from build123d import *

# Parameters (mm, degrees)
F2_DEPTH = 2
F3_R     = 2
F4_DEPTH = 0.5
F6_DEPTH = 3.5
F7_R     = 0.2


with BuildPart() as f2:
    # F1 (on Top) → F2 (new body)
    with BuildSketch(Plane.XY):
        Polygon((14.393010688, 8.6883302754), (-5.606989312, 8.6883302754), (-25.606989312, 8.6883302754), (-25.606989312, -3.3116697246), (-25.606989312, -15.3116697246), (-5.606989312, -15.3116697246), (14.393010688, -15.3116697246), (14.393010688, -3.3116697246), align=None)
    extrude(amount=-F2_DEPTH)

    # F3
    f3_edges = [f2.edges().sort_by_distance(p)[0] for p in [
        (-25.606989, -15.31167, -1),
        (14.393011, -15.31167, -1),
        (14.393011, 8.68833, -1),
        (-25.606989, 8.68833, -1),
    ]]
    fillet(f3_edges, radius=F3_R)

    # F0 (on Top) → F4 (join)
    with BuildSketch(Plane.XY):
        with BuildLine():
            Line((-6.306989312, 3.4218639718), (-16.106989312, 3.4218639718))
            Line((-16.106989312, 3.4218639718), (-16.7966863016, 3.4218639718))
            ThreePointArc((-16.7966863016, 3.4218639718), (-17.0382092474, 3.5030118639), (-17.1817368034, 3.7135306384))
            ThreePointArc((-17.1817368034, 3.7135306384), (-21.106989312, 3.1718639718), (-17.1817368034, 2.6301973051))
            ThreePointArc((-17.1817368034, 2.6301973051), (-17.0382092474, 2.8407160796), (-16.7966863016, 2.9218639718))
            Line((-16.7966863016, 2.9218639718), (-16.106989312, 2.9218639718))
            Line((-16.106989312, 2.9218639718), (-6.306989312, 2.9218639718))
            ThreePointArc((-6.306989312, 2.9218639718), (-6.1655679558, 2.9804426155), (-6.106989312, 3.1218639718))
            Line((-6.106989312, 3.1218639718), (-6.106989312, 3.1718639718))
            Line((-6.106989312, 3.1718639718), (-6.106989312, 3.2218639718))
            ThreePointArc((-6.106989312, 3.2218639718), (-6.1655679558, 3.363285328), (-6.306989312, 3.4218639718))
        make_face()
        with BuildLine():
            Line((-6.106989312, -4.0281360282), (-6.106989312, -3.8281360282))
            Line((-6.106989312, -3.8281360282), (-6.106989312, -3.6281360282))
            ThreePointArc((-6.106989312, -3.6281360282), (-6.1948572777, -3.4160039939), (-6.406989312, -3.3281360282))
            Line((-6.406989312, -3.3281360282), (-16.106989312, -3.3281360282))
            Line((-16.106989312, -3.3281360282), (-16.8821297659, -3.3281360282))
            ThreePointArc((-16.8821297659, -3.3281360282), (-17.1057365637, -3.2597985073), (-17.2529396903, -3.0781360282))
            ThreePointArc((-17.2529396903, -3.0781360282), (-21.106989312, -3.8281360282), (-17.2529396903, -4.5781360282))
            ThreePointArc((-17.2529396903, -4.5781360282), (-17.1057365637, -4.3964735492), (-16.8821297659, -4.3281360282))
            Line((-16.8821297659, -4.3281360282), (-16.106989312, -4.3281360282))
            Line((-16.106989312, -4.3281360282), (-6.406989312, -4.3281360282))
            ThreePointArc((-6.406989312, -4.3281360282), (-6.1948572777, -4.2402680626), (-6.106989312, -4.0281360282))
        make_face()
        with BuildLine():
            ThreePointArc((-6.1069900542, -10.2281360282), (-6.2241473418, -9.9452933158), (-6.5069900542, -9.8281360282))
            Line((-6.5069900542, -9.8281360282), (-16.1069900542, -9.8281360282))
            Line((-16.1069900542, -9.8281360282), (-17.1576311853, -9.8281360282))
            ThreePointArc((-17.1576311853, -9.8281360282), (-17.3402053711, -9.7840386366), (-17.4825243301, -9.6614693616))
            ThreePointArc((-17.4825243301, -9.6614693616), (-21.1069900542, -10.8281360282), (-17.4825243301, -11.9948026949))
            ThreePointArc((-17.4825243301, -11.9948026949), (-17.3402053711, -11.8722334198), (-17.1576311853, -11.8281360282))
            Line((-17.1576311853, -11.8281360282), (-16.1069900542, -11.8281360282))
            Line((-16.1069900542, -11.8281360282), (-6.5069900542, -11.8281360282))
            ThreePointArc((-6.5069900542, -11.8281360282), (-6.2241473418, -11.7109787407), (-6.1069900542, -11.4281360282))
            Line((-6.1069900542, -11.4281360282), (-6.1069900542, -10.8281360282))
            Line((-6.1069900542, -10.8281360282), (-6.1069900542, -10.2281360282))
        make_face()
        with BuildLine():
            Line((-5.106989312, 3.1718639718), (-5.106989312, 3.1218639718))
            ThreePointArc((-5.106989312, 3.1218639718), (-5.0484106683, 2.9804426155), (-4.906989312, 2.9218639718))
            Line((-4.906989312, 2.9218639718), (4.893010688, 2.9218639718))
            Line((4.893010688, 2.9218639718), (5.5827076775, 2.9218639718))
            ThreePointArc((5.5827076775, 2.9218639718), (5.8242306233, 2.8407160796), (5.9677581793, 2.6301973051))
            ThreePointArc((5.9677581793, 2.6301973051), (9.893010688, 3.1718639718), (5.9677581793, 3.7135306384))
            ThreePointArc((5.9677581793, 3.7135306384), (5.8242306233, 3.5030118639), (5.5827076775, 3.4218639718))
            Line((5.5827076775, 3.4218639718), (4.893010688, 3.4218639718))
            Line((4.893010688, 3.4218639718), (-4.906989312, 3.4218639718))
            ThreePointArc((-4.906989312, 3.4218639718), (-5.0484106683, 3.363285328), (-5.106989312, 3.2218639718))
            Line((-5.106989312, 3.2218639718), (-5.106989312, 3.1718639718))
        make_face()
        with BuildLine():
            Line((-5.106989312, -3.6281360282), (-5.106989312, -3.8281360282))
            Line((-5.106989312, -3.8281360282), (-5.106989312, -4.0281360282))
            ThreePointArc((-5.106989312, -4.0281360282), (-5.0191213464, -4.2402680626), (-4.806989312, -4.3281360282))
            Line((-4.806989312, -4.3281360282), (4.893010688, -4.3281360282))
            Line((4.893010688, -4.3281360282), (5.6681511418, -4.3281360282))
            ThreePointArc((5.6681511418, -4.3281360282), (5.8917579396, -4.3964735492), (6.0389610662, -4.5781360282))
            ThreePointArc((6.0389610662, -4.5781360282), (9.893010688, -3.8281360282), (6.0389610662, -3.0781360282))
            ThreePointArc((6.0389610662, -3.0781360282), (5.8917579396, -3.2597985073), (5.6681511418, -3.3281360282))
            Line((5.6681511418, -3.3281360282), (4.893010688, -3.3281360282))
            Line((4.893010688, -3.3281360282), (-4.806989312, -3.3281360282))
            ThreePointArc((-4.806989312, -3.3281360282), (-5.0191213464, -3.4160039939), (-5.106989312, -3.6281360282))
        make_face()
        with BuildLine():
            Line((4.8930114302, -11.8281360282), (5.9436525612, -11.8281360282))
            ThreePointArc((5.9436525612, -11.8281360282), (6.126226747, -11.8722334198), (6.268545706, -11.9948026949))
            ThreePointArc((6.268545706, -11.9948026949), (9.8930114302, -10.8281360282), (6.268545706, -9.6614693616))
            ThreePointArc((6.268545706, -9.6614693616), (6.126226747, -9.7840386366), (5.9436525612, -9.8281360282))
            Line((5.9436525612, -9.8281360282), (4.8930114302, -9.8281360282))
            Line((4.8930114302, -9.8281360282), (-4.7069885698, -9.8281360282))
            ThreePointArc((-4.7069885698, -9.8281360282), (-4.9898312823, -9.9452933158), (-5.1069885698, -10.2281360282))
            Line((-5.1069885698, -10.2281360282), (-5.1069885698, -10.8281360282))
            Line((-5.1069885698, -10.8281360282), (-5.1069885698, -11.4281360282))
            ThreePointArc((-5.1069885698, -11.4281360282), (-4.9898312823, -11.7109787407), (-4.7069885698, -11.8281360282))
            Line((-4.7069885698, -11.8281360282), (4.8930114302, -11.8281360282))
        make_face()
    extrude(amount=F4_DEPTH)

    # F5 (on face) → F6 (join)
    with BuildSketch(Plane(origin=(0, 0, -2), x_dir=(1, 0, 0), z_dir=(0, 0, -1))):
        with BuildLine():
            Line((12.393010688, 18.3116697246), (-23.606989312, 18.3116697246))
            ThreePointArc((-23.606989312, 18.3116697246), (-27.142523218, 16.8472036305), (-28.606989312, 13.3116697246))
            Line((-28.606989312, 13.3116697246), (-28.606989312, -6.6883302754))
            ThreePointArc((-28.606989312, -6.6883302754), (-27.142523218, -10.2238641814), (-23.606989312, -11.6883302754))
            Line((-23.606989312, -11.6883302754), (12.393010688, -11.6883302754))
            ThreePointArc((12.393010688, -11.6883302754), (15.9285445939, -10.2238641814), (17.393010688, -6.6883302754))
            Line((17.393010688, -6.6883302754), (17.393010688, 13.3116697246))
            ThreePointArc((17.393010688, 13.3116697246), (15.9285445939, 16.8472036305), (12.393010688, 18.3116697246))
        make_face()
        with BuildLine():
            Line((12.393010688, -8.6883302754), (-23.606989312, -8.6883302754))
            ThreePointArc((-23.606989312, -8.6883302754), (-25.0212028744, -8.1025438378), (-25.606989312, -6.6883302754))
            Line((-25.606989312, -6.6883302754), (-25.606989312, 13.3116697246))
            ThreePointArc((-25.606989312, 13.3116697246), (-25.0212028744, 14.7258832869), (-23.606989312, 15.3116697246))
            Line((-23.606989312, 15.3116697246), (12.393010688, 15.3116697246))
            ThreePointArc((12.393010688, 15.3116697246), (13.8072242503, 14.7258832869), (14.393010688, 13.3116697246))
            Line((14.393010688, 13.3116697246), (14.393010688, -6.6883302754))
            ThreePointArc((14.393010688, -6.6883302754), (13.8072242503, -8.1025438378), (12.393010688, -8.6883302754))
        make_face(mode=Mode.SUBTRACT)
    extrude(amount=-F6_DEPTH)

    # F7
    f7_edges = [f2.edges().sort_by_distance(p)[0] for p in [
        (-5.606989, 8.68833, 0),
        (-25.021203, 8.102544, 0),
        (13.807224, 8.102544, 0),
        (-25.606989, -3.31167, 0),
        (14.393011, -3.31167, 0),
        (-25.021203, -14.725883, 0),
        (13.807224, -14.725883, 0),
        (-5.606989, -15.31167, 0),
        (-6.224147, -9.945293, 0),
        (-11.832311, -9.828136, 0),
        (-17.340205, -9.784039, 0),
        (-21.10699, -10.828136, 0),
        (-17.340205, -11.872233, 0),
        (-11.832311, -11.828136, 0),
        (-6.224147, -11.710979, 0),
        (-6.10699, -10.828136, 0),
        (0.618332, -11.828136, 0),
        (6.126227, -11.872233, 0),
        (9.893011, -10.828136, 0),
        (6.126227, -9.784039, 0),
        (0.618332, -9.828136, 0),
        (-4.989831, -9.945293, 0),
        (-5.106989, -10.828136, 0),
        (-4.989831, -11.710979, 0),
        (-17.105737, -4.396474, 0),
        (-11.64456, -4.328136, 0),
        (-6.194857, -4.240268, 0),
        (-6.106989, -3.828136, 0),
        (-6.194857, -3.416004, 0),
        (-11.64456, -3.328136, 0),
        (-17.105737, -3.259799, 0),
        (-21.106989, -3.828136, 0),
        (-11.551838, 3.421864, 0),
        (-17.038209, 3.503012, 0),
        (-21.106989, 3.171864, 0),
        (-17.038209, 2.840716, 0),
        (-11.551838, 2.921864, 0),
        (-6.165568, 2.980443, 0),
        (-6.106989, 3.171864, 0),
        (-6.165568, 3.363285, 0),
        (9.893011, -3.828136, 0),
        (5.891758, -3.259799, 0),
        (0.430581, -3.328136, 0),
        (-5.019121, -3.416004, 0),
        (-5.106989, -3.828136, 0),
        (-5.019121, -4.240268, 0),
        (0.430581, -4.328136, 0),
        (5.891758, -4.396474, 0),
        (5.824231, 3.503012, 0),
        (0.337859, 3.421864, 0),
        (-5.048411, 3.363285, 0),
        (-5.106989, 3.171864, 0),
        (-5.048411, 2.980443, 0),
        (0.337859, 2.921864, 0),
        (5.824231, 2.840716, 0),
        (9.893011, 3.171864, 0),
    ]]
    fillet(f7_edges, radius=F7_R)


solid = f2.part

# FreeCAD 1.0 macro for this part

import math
import FreeCAD as App
import Part
import Sketcher

V = App.Vector


def edges_at(feature, points):
    """Names of the edges that pass closest to the given points."""
    edges = feature.Shape.Edges
    near = lambda p: min(range(len(edges)), key=lambda i: edges[i].distToShape(Part.Vertex(*p))[0])
    return sorted({f"Edge{near(p) + 1}" for p in points})


def add_polygon(sketch, points):
    """Adds a closed chain of lines whose ends are joined by coincident constraints."""
    first, n = sketch.GeometryCount, len(points)
    for a, b in zip(points, points[1:] + points[:1]):
        sketch.addGeometry(Part.LineSegment(App.Vector(*a, 0), App.Vector(*b, 0)), False)
    for i in range(n):
        sketch.addConstraint(Sketcher.Constraint("Coincident", first + i, 2, first + (i + 1) % n, 1))

doc = App.newDocument("Part")
params = doc.addObject("Spreadsheet::Sheet", "Params")
for row, (alias, value) in enumerate([
    ("sketch1_width", "40 mm"),
    ("sketch1_height", "24 mm"),
    ("pad1_length", "2 mm"),
    ("fillet_radius", "2 mm"),
    ("sketch2_radius", "2 mm"),
    ("sketch2_radius2", "0.4 mm"),
    ("sketch2_radius3", "0.2 mm"),
    ("sketch2_radius4", "0.3 mm"),
    ("sketch2_height", "0.1 mm"),
    ("pad2_length", "0.5 mm"),
    ("sketch3_radius", "5 mm"),
    ("sketch3_radius2", "2 mm"),
    ("sketch3_width", "36 mm"),
    ("sketch3_height", "20 mm"),
    ("pad3_length", "3.5 mm"),
    ("fillet2_radius", "0.2 mm"),
], start=1):
    params.set(f"A{row}", alias)
    params.set(f"B{row}", "=" + value)
    params.setAlias(f"B{row}", alias)

body = doc.addObject("PartDesign::Body", "Body")

sketch1 = body.newObject("Sketcher::SketchObject", "Sketch")
sketch1.AttachmentSupport = (doc.getObject("XY_Plane"), [""])
sketch1.MapMode = "FlatFace"
add_polygon(sketch1, [(14, 9), (-26, 9), (-26, -15), (14, -15)])
sketch1.addConstraint([
    Sketcher.Constraint("Horizontal", 0),
    Sketcher.Constraint("Vertical", 1),
    Sketcher.Constraint("Horizontal", 2),
    Sketcher.Constraint("Vertical", 3),
    Sketcher.Constraint("DistanceX", 0, 2, 0, 1, 40.0),
    Sketcher.Constraint("DistanceY", 1, 2, 1, 1, 24.0),
    Sketcher.Constraint("DistanceX", 0, 2, -1, 1, 25.606989),
    Sketcher.Constraint("DistanceY", -1, 1, 0, 2, 8.68833),
])
sketch1.setExpression("Constraints[8]", "Params.sketch1_width")
sketch1.setExpression("Constraints[9]", "Params.sketch1_height")
pad1 = body.newObject("PartDesign::Pad", "Pad")
pad1.Profile = sketch1
pad1.setExpression("Length", "Params.pad1_length")
pad1.Reversed = True
doc.recompute()

fillet = body.newObject("PartDesign::Fillet", "Fillet")
fillet.Base = (pad1, edges_at(pad1, [
    (-25.607, -15.312, -1),
    (14.393, -15.312, -1),
    (14.393, 8.688, -1),
    (-25.607, 8.688, -1),
]))
fillet.setExpression("Radius", "Params.fillet_radius")

sketch2 = body.newObject("Sketcher::SketchObject", "Sketch001")
sketch2.AttachmentSupport = (doc.getObject("XY_Plane"), [""])
sketch2.MapMode = "FlatFace"
sketch2.addGeometry([
    Part.LineSegment(V(-6.31, 3.42, 0), V(-16.8, 3.42, 0)),
    Part.ArcOfCircle(Part.Circle(V(-16.8, 3.82, 0), V(0, 0, 1), 0.4), math.radians(-164), math.radians(-90)),
    Part.ArcOfCircle(Part.Circle(V(-19.11, 3.17, 0), V(0, 0, 1), 2), math.radians(16), math.radians(344)),
    Part.ArcOfCircle(Part.Circle(V(-16.8, 2.52, 0), V(0, 0, 1), 0.4), math.radians(90), math.radians(164)),
    Part.LineSegment(V(-16.8, 2.92, 0), V(-6.31, 2.92, 0)),
    Part.ArcOfCircle(Part.Circle(V(-6.31, 3.12, 0), V(0, 0, 1), 0.2), math.radians(-90), math.radians(0)),
    Part.LineSegment(V(-6.11, 3.12, 0), V(-6.11, 3.22, 0)),
    Part.ArcOfCircle(Part.Circle(V(-6.31, 3.22, 0), V(0, 0, 1), 0.2), math.radians(0), math.radians(90)),
    Part.LineSegment(V(-6.11, -4.03, 0), V(-6.11, -3.63, 0)),
    Part.ArcOfCircle(Part.Circle(V(-6.41, -3.63, 0), V(0, 0, 1), 0.3), math.radians(0), math.radians(90)),
    Part.LineSegment(V(-6.41, -3.33, 0), V(-16.88, -3.33, 0)),
    Part.ArcOfCircle(Part.Circle(V(-16.88, -2.93, 0), V(0, 0, 1), 0.4), math.radians(-158), math.radians(-90)),
    Part.ArcOfCircle(Part.Circle(V(-19.11, -3.83, 0), V(0, 0, 1), 2), math.radians(22), math.radians(338)),
    Part.ArcOfCircle(Part.Circle(V(-16.88, -4.73, 0), V(0, 0, 1), 0.4), math.radians(90), math.radians(158)),
    Part.LineSegment(V(-16.88, -4.33, 0), V(-6.41, -4.33, 0)),
    Part.ArcOfCircle(Part.Circle(V(-6.41, -4.03, 0), V(0, 0, 1), 0.3), math.radians(-90), math.radians(0)),
    Part.ArcOfCircle(Part.Circle(V(-6.51, -10.23, 0), V(0, 0, 1), 0.4), math.radians(0), math.radians(90)),
    Part.LineSegment(V(-6.51, -9.83, 0), V(-17.16, -9.83, 0)),
    Part.ArcOfCircle(Part.Circle(V(-17.16, -9.43, 0), V(0, 0, 1), 0.4), math.radians(-144), math.radians(-90)),
    Part.ArcOfCircle(Part.Circle(V(-19.11, -10.83, 0), V(0, 0, 1), 2), math.radians(36), math.radians(324)),
    Part.ArcOfCircle(Part.Circle(V(-17.16, -12.23, 0), V(0, 0, 1), 0.4), math.radians(90), math.radians(144)),
    Part.LineSegment(V(-17.16, -11.83, 0), V(-6.51, -11.83, 0)),
    Part.ArcOfCircle(Part.Circle(V(-6.51, -11.43, 0), V(0, 0, 1), 0.4), math.radians(-90), math.radians(0)),
    Part.LineSegment(V(-6.11, -11.43, 0), V(-6.11, -10.23, 0)),
    Part.ArcOfCircle(Part.Circle(V(-4.91, 3.12, 0), V(0, 0, 1), 0.2), math.radians(180), math.radians(270)),
    Part.LineSegment(V(-4.91, 2.92, 0), V(5.58, 2.92, 0)),
    Part.ArcOfCircle(Part.Circle(V(5.58, 2.52, 0), V(0, 0, 1), 0.4), math.radians(16), math.radians(90)),
    Part.ArcOfCircle(Part.Circle(V(7.89, 3.17, 0), V(0, 0, 1), 2), math.radians(-164), math.radians(164)),
    Part.ArcOfCircle(Part.Circle(V(5.58, 3.82, 0), V(0, 0, 1), 0.4), math.radians(-90), math.radians(-16)),
    Part.LineSegment(V(5.58, 3.42, 0), V(-4.91, 3.42, 0)),
    Part.ArcOfCircle(Part.Circle(V(-4.91, 3.22, 0), V(0, 0, 1), 0.2), math.radians(90), math.radians(180)),
    Part.LineSegment(V(-5.11, 3.22, 0), V(-5.11, 3.12, 0)),
    Part.LineSegment(V(-5.11, -3.63, 0), V(-5.11, -4.03, 0)),
    Part.ArcOfCircle(Part.Circle(V(-4.81, -4.03, 0), V(0, 0, 1), 0.3), math.radians(180), math.radians(270)),
    Part.LineSegment(V(-4.81, -4.33, 0), V(5.67, -4.33, 0)),
    Part.ArcOfCircle(Part.Circle(V(5.67, -4.73, 0), V(0, 0, 1), 0.4), math.radians(22), math.radians(90)),
    Part.ArcOfCircle(Part.Circle(V(7.89, -3.83, 0), V(0, 0, 1), 2), math.radians(-158), math.radians(158)),
    Part.ArcOfCircle(Part.Circle(V(5.67, -2.93, 0), V(0, 0, 1), 0.4), math.radians(-90), math.radians(-22)),
    Part.LineSegment(V(5.67, -3.33, 0), V(-4.81, -3.33, 0)),
    Part.ArcOfCircle(Part.Circle(V(-4.81, -3.63, 0), V(0, 0, 1), 0.3), math.radians(90), math.radians(180)),
    Part.ArcOfCircle(Part.Circle(V(5.94, -12.23, 0), V(0, 0, 1), 0.4), math.radians(36), math.radians(90)),
    Part.ArcOfCircle(Part.Circle(V(7.89, -10.83, 0), V(0, 0, 1), 2), math.radians(-144), math.radians(144)),
    Part.ArcOfCircle(Part.Circle(V(5.94, -9.43, 0), V(0, 0, 1), 0.4), math.radians(-90), math.radians(-36)),
    Part.LineSegment(V(5.94, -9.83, 0), V(-4.71, -9.83, 0)),
    Part.ArcOfCircle(Part.Circle(V(-4.71, -10.23, 0), V(0, 0, 1), 0.4), math.radians(90), math.radians(180)),
    Part.LineSegment(V(-5.11, -10.23, 0), V(-5.11, -11.43, 0)),
    Part.ArcOfCircle(Part.Circle(V(-4.71, -11.43, 0), V(0, 0, 1), 0.4), math.radians(180), math.radians(270)),
    Part.LineSegment(V(-4.71, -11.83, 0), V(5.94, -11.83, 0)),
], False)
sketch2.addConstraint([
    Sketcher.Constraint("Tangent", 0, 2, 1, 2),
    Sketcher.Constraint("Tangent", 1, 1, 2, 1),
    Sketcher.Constraint("Tangent", 2, 2, 3, 2),
    Sketcher.Constraint("Tangent", 3, 1, 4, 1),
    Sketcher.Constraint("Tangent", 4, 2, 5, 1),
    Sketcher.Constraint("Tangent", 5, 2, 6, 1),
    Sketcher.Constraint("Tangent", 6, 2, 7, 1),
    Sketcher.Constraint("Tangent", 7, 2, 0, 1),
    Sketcher.Constraint("Tangent", 8, 2, 9, 1),
    Sketcher.Constraint("Tangent", 9, 2, 10, 1),
    Sketcher.Constraint("Tangent", 10, 2, 11, 2),
    Sketcher.Constraint("Tangent", 11, 1, 12, 1),
    Sketcher.Constraint("Tangent", 12, 2, 13, 2),
    Sketcher.Constraint("Tangent", 13, 1, 14, 1),
    Sketcher.Constraint("Tangent", 14, 2, 15, 1),
    Sketcher.Constraint("Tangent", 15, 2, 8, 1),
    Sketcher.Constraint("Tangent", 16, 2, 17, 1),
    Sketcher.Constraint("Tangent", 17, 2, 18, 2),
    Sketcher.Constraint("Tangent", 18, 1, 19, 1),
    Sketcher.Constraint("Tangent", 19, 2, 20, 2),
    Sketcher.Constraint("Tangent", 20, 1, 21, 1),
    Sketcher.Constraint("Tangent", 21, 2, 22, 1),
    Sketcher.Constraint("Tangent", 22, 2, 23, 1),
    Sketcher.Constraint("Tangent", 23, 2, 16, 1),
    Sketcher.Constraint("Tangent", 24, 2, 25, 1),
    Sketcher.Constraint("Tangent", 25, 2, 26, 2),
    Sketcher.Constraint("Tangent", 26, 1, 27, 1),
    Sketcher.Constraint("Tangent", 27, 2, 28, 2),
    Sketcher.Constraint("Tangent", 28, 1, 29, 1),
    Sketcher.Constraint("Tangent", 29, 2, 30, 1),
    Sketcher.Constraint("Tangent", 30, 2, 31, 1),
    Sketcher.Constraint("Tangent", 31, 2, 24, 1),
    Sketcher.Constraint("Tangent", 32, 2, 33, 1),
    Sketcher.Constraint("Tangent", 33, 2, 34, 1),
    Sketcher.Constraint("Tangent", 34, 2, 35, 2),
    Sketcher.Constraint("Tangent", 35, 1, 36, 1),
    Sketcher.Constraint("Tangent", 36, 2, 37, 2),
    Sketcher.Constraint("Tangent", 37, 1, 38, 1),
    Sketcher.Constraint("Tangent", 38, 2, 39, 1),
    Sketcher.Constraint("Tangent", 39, 2, 32, 1),
    Sketcher.Constraint("Tangent", 40, 1, 41, 1),
    Sketcher.Constraint("Tangent", 41, 2, 42, 2),
    Sketcher.Constraint("Tangent", 42, 1, 43, 1),
    Sketcher.Constraint("Tangent", 43, 2, 44, 1),
    Sketcher.Constraint("Tangent", 44, 2, 45, 1),
    Sketcher.Constraint("Tangent", 45, 2, 46, 1),
    Sketcher.Constraint("Tangent", 46, 2, 47, 1),
    Sketcher.Constraint("Tangent", 47, 2, 40, 2),
    Sketcher.Constraint("Horizontal", 0),
    Sketcher.Constraint("Horizontal", 4),
    Sketcher.Constraint("Vertical", 6),
    Sketcher.Constraint("Vertical", 8),
    Sketcher.Constraint("Horizontal", 10),
    Sketcher.Constraint("Horizontal", 14),
    Sketcher.Constraint("Horizontal", 17),
    Sketcher.Constraint("Horizontal", 21),
    Sketcher.Constraint("Vertical", 23),
    Sketcher.Constraint("Horizontal", 25),
    Sketcher.Constraint("Horizontal", 29),
    Sketcher.Constraint("Vertical", 31),
    Sketcher.Constraint("Vertical", 32),
    Sketcher.Constraint("Horizontal", 34),
    Sketcher.Constraint("Horizontal", 38),
    Sketcher.Constraint("Horizontal", 43),
    Sketcher.Constraint("Vertical", 45),
    Sketcher.Constraint("Horizontal", 47),
    Sketcher.Constraint("Equal", 1, 3),
    Sketcher.Constraint("Equal", 5, 7),
    Sketcher.Constraint("Equal", 3, 11),
    Sketcher.Constraint("Equal", 2, 12),
    Sketcher.Constraint("Equal", 11, 13),
    Sketcher.Constraint("Equal", 9, 15),
    Sketcher.Constraint("Equal", 13, 16),
    Sketcher.Constraint("Equal", 16, 18),
    Sketcher.Constraint("Equal", 12, 19),
    Sketcher.Constraint("Equal", 18, 20),
    Sketcher.Constraint("Equal", 20, 22),
    Sketcher.Constraint("Equal", 7, 24),
    Sketcher.Constraint("Equal", 22, 26),
    Sketcher.Constraint("Equal", 19, 27),
    Sketcher.Constraint("Equal", 26, 28),
    Sketcher.Constraint("Equal", 24, 30),
    Sketcher.Constraint("Equal", 15, 33),
    Sketcher.Constraint("Equal", 28, 35),
    Sketcher.Constraint("Equal", 27, 36),
    Sketcher.Constraint("Equal", 35, 37),
    Sketcher.Constraint("Equal", 33, 39),
    Sketcher.Constraint("Equal", 37, 40),
    Sketcher.Constraint("Equal", 36, 41),
    Sketcher.Constraint("Equal", 40, 42),
    Sketcher.Constraint("Equal", 42, 44),
    Sketcher.Constraint("Equal", 44, 46),
    Sketcher.Constraint("Horizontal", 5, 3, 24, 3),
    Sketcher.Constraint("Horizontal", 2, 3, 27, 3),
    Sketcher.Constraint("Horizontal", 1, 3, 28, 3),
    Sketcher.Constraint("Horizontal", 15, 3, 33, 3),
    Sketcher.Constraint("Horizontal", 12, 3, 36, 3),
    Sketcher.Constraint("Horizontal", 11, 3, 37, 3),
    Sketcher.Constraint("Horizontal", 20, 3, 40, 3),
    Sketcher.Constraint("Horizontal", 19, 3, 41, 3),
    Sketcher.Constraint("Horizontal", 18, 3, 42, 3),
    Sketcher.Constraint("Vertical", 1, 3, 3, 3),
    Sketcher.Constraint("Vertical", 2, 3, 12, 3),
    Sketcher.Constraint("Vertical", 11, 3, 13, 3),
    Sketcher.Constraint("Vertical", 12, 3, 19, 3),
    Sketcher.Constraint("Vertical", 18, 3, 20, 3),
    Sketcher.Constraint("Vertical", 27, 3, 36, 3),
    Sketcher.Constraint("Vertical", 36, 3, 41, 3),
    Sketcher.Constraint("Vertical", 6, 2, 8, 2),
    Sketcher.Constraint("Vertical", 15, 2, 22, 2),
    Sketcher.Constraint("Vertical", 31, 2, 32, 2),
    Sketcher.Constraint("Vertical", 39, 2, 44, 2),
    Sketcher.Constraint("Equal", 4, 25),
    Sketcher.Constraint("Radius", 2, 2.0),
    Sketcher.Constraint("Radius", 1, 0.4),
    Sketcher.Constraint("Radius", 5, 0.2),
    Sketcher.Constraint("Radius", 9, 0.3),
    Sketcher.Constraint("DistanceY", 6, 1, 6, 2, 0.1),
    Sketcher.Constraint("DistanceY", 8, 1, 8, 2, 0.4),
    Sketcher.Constraint("DistanceY", 23, 1, 23, 2, 1.2),
    Sketcher.Constraint("DistanceX", 10, 2, 10, 1, 10.47514),
    Sketcher.Constraint("DistanceX", 2, 3, -1, 1, 19.106989),
    Sketcher.Constraint("DistanceX", 24, 3, -1, 1, 4.906989),
    Sketcher.Constraint("DistanceY", -1, 1, 1, 1, 3.713531),
    Sketcher.Constraint("DistanceY", 18, 1, -1, 1, 9.661469),
    Sketcher.Constraint("DistanceY", 9, 3, -1, 1, 3.628136),
])
sketch2.setExpression("Constraints[113]", "Params.sketch2_radius")
sketch2.setExpression("Constraints[114]", "Params.sketch2_radius2")
sketch2.setExpression("Constraints[115]", "Params.sketch2_radius3")
sketch2.setExpression("Constraints[116]", "Params.sketch2_radius4")
sketch2.setExpression("Constraints[117]", "Params.sketch2_height")
pad2 = body.newObject("PartDesign::Pad", "Pad001")
pad2.Profile = sketch2
pad2.setExpression("Length", "Params.pad2_length")

sketch3 = body.newObject("Sketcher::SketchObject", "Sketch002")
sketch3.AttachmentSupport = (doc.getObject("XY_Plane"), [""])
sketch3.MapMode = "FlatFace"
sketch3.AttachmentOffset = App.Placement(V(0, 0, -2), App.Rotation())
sketch3.addGeometry([
    Part.LineSegment(V(12.4, -18.3, 0), V(-23.6, -18.3, 0)),
    Part.ArcOfCircle(Part.Circle(V(-23.6, -13.3, 0), V(0, 0, 1), 5), math.radians(180), math.radians(270)),
    Part.LineSegment(V(-28.6, -13.3, 0), V(-28.6, 6.7, 0)),
    Part.ArcOfCircle(Part.Circle(V(-23.6, 6.7, 0), V(0, 0, 1), 5), math.radians(90), math.radians(180)),
    Part.LineSegment(V(-23.6, 11.7, 0), V(12.4, 11.7, 0)),
    Part.ArcOfCircle(Part.Circle(V(12.4, 6.7, 0), V(0, 0, 1), 5), math.radians(0), math.radians(90)),
    Part.LineSegment(V(17.4, 6.7, 0), V(17.4, -13.3, 0)),
    Part.ArcOfCircle(Part.Circle(V(12.4, -13.3, 0), V(0, 0, 1), 5), math.radians(-90), math.radians(0)),
    Part.ArcOfCircle(Part.Circle(V(12.4, 6.7, 0), V(0, 0, 1), 2), math.radians(0), math.radians(90)),
    Part.LineSegment(V(12.4, 8.7, 0), V(-23.6, 8.7, 0)),
    Part.ArcOfCircle(Part.Circle(V(-23.6, 6.7, 0), V(0, 0, 1), 2), math.radians(90), math.radians(180)),
    Part.LineSegment(V(-25.6, 6.7, 0), V(-25.6, -13.3, 0)),
    Part.ArcOfCircle(Part.Circle(V(-23.6, -13.3, 0), V(0, 0, 1), 2), math.radians(180), math.radians(270)),
    Part.LineSegment(V(-23.6, -15.3, 0), V(12.4, -15.3, 0)),
    Part.ArcOfCircle(Part.Circle(V(12.4, -13.3, 0), V(0, 0, 1), 2), math.radians(-90), math.radians(0)),
    Part.LineSegment(V(14.4, -13.3, 0), V(14.4, 6.7, 0)),
], False)
sketch3.addConstraint([
    Sketcher.Constraint("Tangent", 0, 2, 1, 2),
    Sketcher.Constraint("Tangent", 1, 1, 2, 1),
    Sketcher.Constraint("Tangent", 2, 2, 3, 2),
    Sketcher.Constraint("Tangent", 3, 1, 4, 1),
    Sketcher.Constraint("Tangent", 4, 2, 5, 2),
    Sketcher.Constraint("Tangent", 5, 1, 6, 1),
    Sketcher.Constraint("Tangent", 6, 2, 7, 2),
    Sketcher.Constraint("Tangent", 7, 1, 0, 1),
    Sketcher.Constraint("Tangent", 8, 2, 9, 1),
    Sketcher.Constraint("Tangent", 9, 2, 10, 1),
    Sketcher.Constraint("Tangent", 10, 2, 11, 1),
    Sketcher.Constraint("Tangent", 11, 2, 12, 1),
    Sketcher.Constraint("Tangent", 12, 2, 13, 1),
    Sketcher.Constraint("Tangent", 13, 2, 14, 1),
    Sketcher.Constraint("Tangent", 14, 2, 15, 1),
    Sketcher.Constraint("Tangent", 15, 2, 8, 1),
    Sketcher.Constraint("Horizontal", 0),
    Sketcher.Constraint("Vertical", 2),
    Sketcher.Constraint("Horizontal", 4),
    Sketcher.Constraint("Vertical", 6),
    Sketcher.Constraint("Horizontal", 9),
    Sketcher.Constraint("Vertical", 11),
    Sketcher.Constraint("Horizontal", 13),
    Sketcher.Constraint("Vertical", 15),
    Sketcher.Constraint("Coincident", 8, 3, 5, 3),
    Sketcher.Constraint("Coincident", 10, 3, 3, 3),
    Sketcher.Constraint("Coincident", 12, 3, 1, 3),
    Sketcher.Constraint("Equal", 1, 3),
    Sketcher.Constraint("Equal", 3, 5),
    Sketcher.Constraint("Equal", 5, 7),
    Sketcher.Constraint("Equal", 12, 14),
    Sketcher.Constraint("Radius", 1, 5.0),
    Sketcher.Constraint("Radius", 8, 2.0),
    Sketcher.Constraint("DistanceX", 0, 2, 0, 1, 36.0),
    Sketcher.Constraint("DistanceY", 2, 1, 2, 2, 20.0),
    Sketcher.Constraint("DistanceX", 1, 3, -1, 1, 23.606989),
    Sketcher.Constraint("DistanceY", 1, 3, -1, 1, 13.31167),
])
sketch3.setExpression("Constraints[31]", "Params.sketch3_radius")
sketch3.setExpression("Constraints[32]", "Params.sketch3_radius2")
sketch3.setExpression("Constraints[33]", "Params.sketch3_width")
sketch3.setExpression("Constraints[34]", "Params.sketch3_height")
pad3 = body.newObject("PartDesign::Pad", "Pad002")
pad3.Profile = sketch3
pad3.setExpression("Length", "Params.pad3_length")
doc.recompute()

fillet2 = body.newObject("PartDesign::Fillet", "Fillet001")
fillet2.Base = (pad3, edges_at(pad3, [
    (-5.607, 8.688, 0),
    (-25.021, 8.103, 0),
    (13.807, 8.103, 0),
    (-25.607, -3.312, 0),
    (14.393, -3.312, 0),
    (-25.021, -14.726, 0),
    (13.807, -14.726, 0),
    (-5.607, -15.312, 0),
    (-6.224, -9.945, 0),
    (-11.832, -9.828, 0),
    (-17.34, -9.784, 0),
    (-21.107, -10.828, 0),
    (-17.34, -11.872, 0),
    (-11.832, -11.828, 0),
    (-6.224, -11.711, 0),
    (-6.107, -10.828, 0),
    (0.618, -11.828, 0),
    (6.126, -11.872, 0),
    (9.893, -10.828, 0),
    (6.126, -9.784, 0),
    (0.618, -9.828, 0),
    (-4.99, -9.945, 0),
    (-5.107, -10.828, 0),
    (-4.99, -11.711, 0),
    (-17.106, -4.396, 0),
    (-11.645, -4.328, 0),
    (-6.195, -4.24, 0),
    (-6.107, -3.828, 0),
    (-6.195, -3.416, 0),
    (-11.645, -3.328, 0),
    (-17.106, -3.26, 0),
    (-21.107, -3.828, 0),
    (-11.552, 3.422, 0),
    (-17.038, 3.503, 0),
    (-21.107, 3.172, 0),
    (-17.038, 2.841, 0),
    (-11.552, 2.922, 0),
    (-6.166, 2.98, 0),
    (-6.107, 3.172, 0),
    (-6.166, 3.363, 0),
    (9.893, -3.828, 0),
    (5.892, -3.26, 0),
    (0.431, -3.328, 0),
    (-5.019, -3.416, 0),
    (-5.107, -3.828, 0),
    (-5.019, -4.24, 0),
    (0.431, -4.328, 0),
    (5.892, -4.396, 0),
    (5.824, 3.503, 0),
    (0.338, 3.422, 0),
    (-5.048, 3.363, 0),
    (-5.107, 3.172, 0),
    (-5.048, 2.98, 0),
    (0.338, 2.922, 0),
    (5.824, 2.841, 0),
    (9.893, 3.172, 0),
]))
fillet2.setExpression("Radius", "Params.fillet2_radius")

doc.recompute()
